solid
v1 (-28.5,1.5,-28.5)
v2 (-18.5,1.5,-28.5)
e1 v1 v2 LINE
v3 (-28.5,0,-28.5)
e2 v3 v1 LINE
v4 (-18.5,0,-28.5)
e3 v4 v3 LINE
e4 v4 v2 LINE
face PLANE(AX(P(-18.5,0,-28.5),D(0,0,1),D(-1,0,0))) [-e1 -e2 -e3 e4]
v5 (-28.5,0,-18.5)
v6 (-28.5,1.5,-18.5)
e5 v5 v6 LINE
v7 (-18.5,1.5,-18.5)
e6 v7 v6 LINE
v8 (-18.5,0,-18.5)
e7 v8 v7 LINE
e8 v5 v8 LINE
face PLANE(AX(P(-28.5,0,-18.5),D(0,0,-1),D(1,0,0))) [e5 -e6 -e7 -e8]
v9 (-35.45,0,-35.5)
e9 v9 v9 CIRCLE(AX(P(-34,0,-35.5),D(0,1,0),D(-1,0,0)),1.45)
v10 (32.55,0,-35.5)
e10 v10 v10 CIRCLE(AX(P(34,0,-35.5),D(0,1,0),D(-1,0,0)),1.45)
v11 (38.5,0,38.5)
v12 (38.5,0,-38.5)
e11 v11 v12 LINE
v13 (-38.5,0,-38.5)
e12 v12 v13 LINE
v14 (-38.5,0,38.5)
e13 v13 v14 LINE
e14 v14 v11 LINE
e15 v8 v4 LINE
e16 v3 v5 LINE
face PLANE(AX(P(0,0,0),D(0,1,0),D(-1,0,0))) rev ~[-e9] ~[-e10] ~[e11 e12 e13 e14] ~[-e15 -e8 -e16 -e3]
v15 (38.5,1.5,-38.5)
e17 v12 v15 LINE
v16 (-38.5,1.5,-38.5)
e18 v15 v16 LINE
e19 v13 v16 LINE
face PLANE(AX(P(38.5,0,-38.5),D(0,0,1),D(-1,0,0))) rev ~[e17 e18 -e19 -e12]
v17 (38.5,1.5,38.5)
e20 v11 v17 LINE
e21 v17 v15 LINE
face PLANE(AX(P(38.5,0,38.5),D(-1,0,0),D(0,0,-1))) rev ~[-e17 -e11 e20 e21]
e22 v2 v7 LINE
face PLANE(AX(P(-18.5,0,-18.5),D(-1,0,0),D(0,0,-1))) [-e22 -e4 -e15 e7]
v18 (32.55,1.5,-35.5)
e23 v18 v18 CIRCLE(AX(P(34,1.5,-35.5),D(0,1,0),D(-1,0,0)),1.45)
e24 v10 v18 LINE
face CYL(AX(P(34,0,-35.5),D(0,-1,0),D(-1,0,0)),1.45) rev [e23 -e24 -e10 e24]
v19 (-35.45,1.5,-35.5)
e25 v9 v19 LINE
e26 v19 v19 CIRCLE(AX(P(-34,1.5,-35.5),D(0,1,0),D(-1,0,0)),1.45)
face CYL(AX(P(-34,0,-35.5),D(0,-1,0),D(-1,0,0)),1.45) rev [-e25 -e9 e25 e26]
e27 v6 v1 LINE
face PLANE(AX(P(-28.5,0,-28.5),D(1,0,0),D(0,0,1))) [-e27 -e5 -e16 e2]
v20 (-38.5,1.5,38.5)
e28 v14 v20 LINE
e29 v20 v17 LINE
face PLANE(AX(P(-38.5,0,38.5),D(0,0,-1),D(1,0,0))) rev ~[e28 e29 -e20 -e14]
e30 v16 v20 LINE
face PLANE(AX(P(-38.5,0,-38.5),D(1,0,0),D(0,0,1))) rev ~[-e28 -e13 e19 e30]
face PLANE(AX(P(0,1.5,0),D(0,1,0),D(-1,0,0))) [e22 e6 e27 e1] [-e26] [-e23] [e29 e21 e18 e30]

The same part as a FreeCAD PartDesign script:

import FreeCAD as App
import Part
import Sketcher
from FreeCAD import Vector
Q = App.Units.Quantity


def add_polygon(sketch, points):
    """Adds a closed chain of lines whose ends are joined by coincident constraints."""
    first, n = sketch.GeometryCount, len(points)
    for a, b in zip(points, points[1:] + points[:1]):
        sketch.addGeometry(Part.LineSegment(App.Vector(*a, 0), App.Vector(*b, 0)), False)
    for i in range(n):
        sketch.addConstraint(Sketcher.Constraint("Coincident", first + i, 2, first + (i + 1) % n, 1))

doc = App.newDocument("Part")
params = doc.addObject("Spreadsheet::Sheet", "Params")
for row, (alias, value) in enumerate([
    ("sketch1_width", "77 mm"),
    ("pad1_length", "1.5 mm"),
    ("sketch2_diameter", "2.9 mm"),
    ("pocket1_length", "1.5 mm"),
    ("sketch3_width", "10 mm"),
    ("pocket2_length", "10 mm"),
], start=1):
    params.set(f"A{row}", alias)
    params.set(f"B{row}", "=" + value)
    params.setAlias(f"B{row}", alias)

body = doc.addObject("PartDesign::Body", "Body")

sketch1 = body.newObject("Sketcher::SketchObject", "Sketch")
sketch1.AttachmentSupport = (doc.getObject("XZ_Plane"), [""])
sketch1.MapMode = "FlatFace"
add_polygon(sketch1, [(-38, -38), (-38, 38), (38, 38), (38, -38)])
sketch1.addConstraint(Sketcher.Constraint("Vertical", 0))
sketch1.addConstraint(Sketcher.Constraint("Horizontal", 1))
sketch1.addConstraint(Sketcher.Constraint("Vertical", 2))
sketch1.addConstraint(Sketcher.Constraint("Horizontal", 3))
sketch1.addConstraint(Sketcher.Constraint("Symmetric", 0, 2, 2, 2, -1, 1))
sketch1.addConstraint(Sketcher.Constraint("Equal", 3, 0))
sketch1.addConstraint(Sketcher.Constraint("DistanceX", 1, 1, 1, 2, Q("77 mm")))
sketch1.setExpression("Constraints[10]", "Params.sketch1_width")
pad1 = body.newObject("PartDesign::Pad", "Pad")
pad1.Profile = sketch1
pad1.setExpression("Length", "Params.pad1_length")
pad1.Reversed = True

sketch2 = body.newObject("Sketcher::SketchObject", "Sketch001")
sketch2.AttachmentSupport = (doc.getObject("XZ_Plane"), [""])
sketch2.MapMode = "FlatFace"
sketch2.addGeometry(Part.Circle(Vector(34, -35.5, 0), Vector(0, 0, 1), 1.4), False)
sketch2.addGeometry(Part.Circle(Vector(-34, -35.5, 0), Vector(0, 0, 1), 1.4), False)
sketch2.addConstraint(Sketcher.Constraint("Equal", 0, 1))
sketch2.addConstraint(Sketcher.Constraint("Symmetric", 0, 3, 1, 3, -2))
sketch2.addConstraint(Sketcher.Constraint("Diameter", 0, Q("2.9 mm")))
sketch2.addConstraint(Sketcher.Constraint("DistanceX", -1, 1, 0, 3, Q("34 mm")))
sketch2.addConstraint(Sketcher.Constraint("DistanceY", 0, 3, -1, 1, Q("35.5 mm")))
sketch2.setExpression("Constraints[2]", "Params.sketch2_diameter")
pocket1 = body.newObject("PartDesign::Pocket", "Pocket")
pocket1.Profile = sketch2
pocket1.setExpression("Length", "Params.pocket1_length")

sketch3 = body.newObject("Sketcher::SketchObject", "Sketch002")
sketch3.AttachmentSupport = (doc.getObject("XZ_Plane"), [""])
sketch3.MapMode = "FlatFace"
add_polygon(sketch3, [(-18, -18), (-18, -28), (-28, -28), (-28, -18)])
sketch3.addConstraint(Sketcher.Constraint("Vertical", 0))
sketch3.addConstraint(Sketcher.Constraint("Horizontal", 1))
sketch3.addConstraint(Sketcher.Constraint("Vertical", 2))
sketch3.addConstraint(Sketcher.Constraint("Horizontal", 3))
sketch3.addConstraint(Sketcher.Constraint("Equal", 3, 0))
sketch3.addConstraint(Sketcher.Constraint("DistanceX", 1, 2, 1, 1, Q("10 mm")))
sketch3.addConstraint(Sketcher.Constraint("DistanceX", 0, 2, -1, 1, Q("18.5 mm")))
sketch3.addConstraint(Sketcher.Constraint("DistanceY", 0, 2, -1, 1, Q("28.5 mm")))
sketch3.setExpression("Constraints[9]", "Params.sketch3_width")
pocket2 = body.newObject("PartDesign::Pocket", "Pocket001")
pocket2.Profile = sketch3
pocket2.setExpression("Length", "Params.pocket2_length")

doc.recompute()
